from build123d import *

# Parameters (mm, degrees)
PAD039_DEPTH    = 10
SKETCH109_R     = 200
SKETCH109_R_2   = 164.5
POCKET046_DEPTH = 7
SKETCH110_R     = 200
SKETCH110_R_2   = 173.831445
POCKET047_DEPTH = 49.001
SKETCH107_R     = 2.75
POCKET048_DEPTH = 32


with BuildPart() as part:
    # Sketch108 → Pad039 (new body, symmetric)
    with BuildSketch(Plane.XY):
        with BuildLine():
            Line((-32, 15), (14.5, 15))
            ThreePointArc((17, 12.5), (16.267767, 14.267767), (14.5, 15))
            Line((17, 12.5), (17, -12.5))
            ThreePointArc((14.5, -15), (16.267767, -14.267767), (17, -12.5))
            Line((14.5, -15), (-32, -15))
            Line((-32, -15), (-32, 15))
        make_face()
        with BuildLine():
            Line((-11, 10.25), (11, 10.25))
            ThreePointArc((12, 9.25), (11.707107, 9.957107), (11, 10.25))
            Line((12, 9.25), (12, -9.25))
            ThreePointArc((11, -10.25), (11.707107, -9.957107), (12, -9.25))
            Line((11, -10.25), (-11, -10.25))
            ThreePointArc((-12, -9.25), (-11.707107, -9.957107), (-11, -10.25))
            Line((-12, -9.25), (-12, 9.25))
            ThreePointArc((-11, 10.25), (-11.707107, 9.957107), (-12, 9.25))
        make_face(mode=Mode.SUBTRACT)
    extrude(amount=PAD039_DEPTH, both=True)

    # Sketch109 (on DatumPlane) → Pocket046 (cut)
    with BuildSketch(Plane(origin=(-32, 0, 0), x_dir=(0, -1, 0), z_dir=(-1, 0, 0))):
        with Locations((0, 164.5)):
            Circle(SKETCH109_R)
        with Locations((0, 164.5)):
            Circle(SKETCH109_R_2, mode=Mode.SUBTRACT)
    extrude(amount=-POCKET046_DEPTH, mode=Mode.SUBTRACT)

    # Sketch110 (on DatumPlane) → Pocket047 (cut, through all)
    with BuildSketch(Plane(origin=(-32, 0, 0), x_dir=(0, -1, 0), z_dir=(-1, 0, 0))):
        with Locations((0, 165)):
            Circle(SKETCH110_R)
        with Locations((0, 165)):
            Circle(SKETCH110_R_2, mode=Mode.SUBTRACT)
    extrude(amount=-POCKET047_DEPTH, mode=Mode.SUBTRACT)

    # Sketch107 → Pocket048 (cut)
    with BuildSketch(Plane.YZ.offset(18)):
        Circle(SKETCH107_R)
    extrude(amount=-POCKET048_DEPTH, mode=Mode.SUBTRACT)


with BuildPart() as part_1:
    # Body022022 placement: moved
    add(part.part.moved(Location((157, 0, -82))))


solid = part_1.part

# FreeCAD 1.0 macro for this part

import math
import FreeCAD as App
import Part
import Sketcher
Q = App.Units.Quantity

doc = App.newDocument("Part")
body = doc.addObject("PartDesign::Body", "Body")

# Sketch on XY plane
sketch1 = body.newObject("Sketcher::SketchObject", "Sketch")
sketch1.AttachmentSupport = (doc.getObject("XY_Plane"), [""])
sketch1.MapMode = "FlatFace"
sketch1.addGeometry([
    Part.LineSegment(App.Vector(14.5, 15, 0), App.Vector(-32, 15, 0)),  # 0
    Part.LineSegment(App.Vector(-32, 15, 0), App.Vector(-32, -15, 0)),  # 1
    Part.LineSegment(App.Vector(-32, -15, 0), App.Vector(14.5, -15, 0)),  # 2
    Part.ArcOfCircle(Part.Circle(App.Vector(14.5, -12.5, 0), App.Vector(0, 0, 1), 2.5), math.radians(-90), math.radians(0)),  # 3
    Part.LineSegment(App.Vector(17, -12.5, 0), App.Vector(17, 12.5, 0)),  # 4
    Part.ArcOfCircle(Part.Circle(App.Vector(14.5, 12.5, 0), App.Vector(0, 0, 1), 2.5), math.radians(0), math.radians(90)),  # 5
    Part.LineSegment(App.Vector(-11, 10.2, 0), App.Vector(11, 10.2, 0)),  # 6
    Part.ArcOfCircle(Part.Circle(App.Vector(11, 9.3, 0), App.Vector(0, 0, 1), 1), math.radians(0), math.radians(90)),  # 7
    Part.LineSegment(App.Vector(12, 9.2, 0), App.Vector(12, -9.2, 0)),  # 8
    Part.ArcOfCircle(Part.Circle(App.Vector(11, -9.3, 0), App.Vector(0, 0, 1), 1), math.radians(-90), math.radians(0)),  # 9
    Part.LineSegment(App.Vector(11, -10.2, 0), App.Vector(-11, -10.2, 0)),  # 10
    Part.ArcOfCircle(Part.Circle(App.Vector(-11, -9.3, 0), App.Vector(0, 0, 1), 1), math.radians(180), math.radians(270)),  # 11
    Part.LineSegment(App.Vector(-12, -9.2, 0), App.Vector(-12, 9.2, 0)),  # 12
    Part.ArcOfCircle(Part.Circle(App.Vector(-11, 9.3, 0), App.Vector(0, 0, 1), 1), math.radians(90), math.radians(180)),  # 13
], False)
sketch1.addConstraint([
    Sketcher.Constraint("Coincident", 0, 2, 1, 1),
    Sketcher.Constraint("Coincident", 1, 2, 2, 1),
    Sketcher.Constraint("Tangent", 2, 2, 3, 1),
    Sketcher.Constraint("Tangent", 3, 2, 4, 1),
    Sketcher.Constraint("Tangent", 4, 2, 5, 1),
    Sketcher.Constraint("Tangent", 5, 2, 0, 1),
    Sketcher.Constraint("Tangent", 6, 2, 7, 2),
    Sketcher.Constraint("Tangent", 7, 1, 8, 1),
    Sketcher.Constraint("Tangent", 8, 2, 9, 2),
    Sketcher.Constraint("Tangent", 9, 1, 10, 1),
    Sketcher.Constraint("Tangent", 10, 2, 11, 2),
    Sketcher.Constraint("Tangent", 11, 1, 12, 1),
    Sketcher.Constraint("Tangent", 12, 2, 13, 2),
    Sketcher.Constraint("Tangent", 13, 1, 6, 1),
    Sketcher.Constraint("Horizontal", 0),
    Sketcher.Constraint("Vertical", 1),
    Sketcher.Constraint("Horizontal", 2),
    Sketcher.Constraint("Vertical", 4),
    Sketcher.Constraint("Horizontal", 6),
    Sketcher.Constraint("Vertical", 8),
    Sketcher.Constraint("Horizontal", 10),
    Sketcher.Constraint("Vertical", 12),
    Sketcher.Constraint("Equal", 3, 5),
    Sketcher.Constraint("Equal", 7, 9),
    Sketcher.Constraint("Equal", 9, 11),
    Sketcher.Constraint("Equal", 11, 13),
    Sketcher.Constraint("Symmetric", 7, 3, 11, 3, -1, 1),
    Sketcher.Constraint("Radius", 7, Q("0.999999 mm")),
    Sketcher.Constraint("Radius", 3, Q("2.5 mm")),
    Sketcher.Constraint("DistanceX", 6, 1, 6, 2, Q("22 mm")),
    Sketcher.Constraint("DistanceY", 1, 2, 1, 1, Q("30 mm")),
    Sketcher.Constraint("DistanceX", 0, 2, 0, 1, Q("46.5 mm")),
    Sketcher.Constraint("DistanceY", 8, 2, 8, 1, Q("18.5 mm")),
    Sketcher.Constraint("DistanceX", 0, 2, -1, 1, Q("32 mm")),
    Sketcher.Constraint("DistanceY", -1, 1, 0, 2, Q("15 mm")),
])
pad1 = body.newObject("PartDesign::Pad", "Pad")
pad1.Profile = sketch1
pad1.Length = 20
pad1.Midplane = True

# Sketch on YZ plane
sketch2 = body.newObject("Sketcher::SketchObject", "Sketch001")
sketch2.AttachmentSupport = (doc.getObject("YZ_Plane"), [""])
sketch2.MapMode = "FlatFace"
sketch2.AttachmentOffset = App.Placement(App.Vector(0, 0, -32), App.Rotation())
sketch2.addGeometry([
    Part.Circle(App.Vector(0, 164, 0), App.Vector(0, 0, 1), 200),
    Part.Circle(App.Vector(0, 164, 0), App.Vector(0, 0, 1), 164),
], False)
sketch2.addConstraint([
    Sketcher.Constraint("Coincident", 1, 3, 0, 3),
    Sketcher.Constraint("PointOnObject", 0, 3, -2),
    Sketcher.Constraint("Diameter", 0, Q("400 mm")),
    Sketcher.Constraint("Diameter", 1, Q("329 mm")),
    Sketcher.Constraint("DistanceY", -1, 1, 0, 3, Q("164.5 mm")),
])
pocket1 = body.newObject("PartDesign::Pocket", "Pocket")
pocket1.Profile = sketch2
pocket1.Length = 7
pocket1.Reversed = True

# Sketch on YZ plane
sketch3 = body.newObject("Sketcher::SketchObject", "Sketch002")
sketch3.AttachmentSupport = (doc.getObject("YZ_Plane"), [""])
sketch3.MapMode = "FlatFace"
sketch3.AttachmentOffset = App.Placement(App.Vector(0, 0, -32), App.Rotation())
sketch3.addGeometry([
    Part.Circle(App.Vector(0, 165, 0), App.Vector(0, 0, 1), 200),
    Part.Circle(App.Vector(0, 165, 0), App.Vector(0, 0, 1), 174),
], False)
sketch3.addConstraint([
    Sketcher.Constraint("Coincident", 1, 3, 0, 3),
    Sketcher.Constraint("PointOnObject", 0, 3, -2),
    Sketcher.Constraint("Diameter", 0, Q("400 mm")),
    Sketcher.Constraint("DistanceY", -1, 1, 0, 3, Q("165 mm")),
    Sketcher.Constraint("Diameter", 1, Q("347.66289 mm")),
])
pocket2 = body.newObject("PartDesign::Pocket", "Pocket001")
pocket2.Profile = sketch3
pocket2.Type = "ThroughAll"
pocket2.Reversed = True

# Sketch on YZ plane
sketch4 = body.newObject("Sketcher::SketchObject", "Sketch003")
sketch4.AttachmentSupport = (doc.getObject("YZ_Plane"), [""])
sketch4.MapMode = "FlatFace"
sketch4.AttachmentOffset = App.Placement(App.Vector(0, 0, 18), App.Rotation())
sketch4.addGeometry(Part.Circle(App.Vector(0, 0, 0), App.Vector(0, 0, 1), 2.8), False)
sketch4.addConstraint([
    Sketcher.Constraint("Coincident", 0, 3, -1, 1),
    Sketcher.Constraint("Diameter", 0, Q("5.5 mm")),
])
pocket3 = body.newObject("PartDesign::Pocket", "Pocket002")
pocket3.Profile = sketch4
pocket3.Length = 32
body2 = doc.addObject("PartDesign::Body", "Body001")
doc.recompute()

body.Placement = App.Placement(App.Vector(157, 0, -82), App.Rotation(App.Vector(0, 0, 1), 0))
boolean = body2.newObject("PartDesign::Boolean", "Boolean")
boolean.Type = "Fuse"
boolean.addObjects([body])

doc.recompute()
